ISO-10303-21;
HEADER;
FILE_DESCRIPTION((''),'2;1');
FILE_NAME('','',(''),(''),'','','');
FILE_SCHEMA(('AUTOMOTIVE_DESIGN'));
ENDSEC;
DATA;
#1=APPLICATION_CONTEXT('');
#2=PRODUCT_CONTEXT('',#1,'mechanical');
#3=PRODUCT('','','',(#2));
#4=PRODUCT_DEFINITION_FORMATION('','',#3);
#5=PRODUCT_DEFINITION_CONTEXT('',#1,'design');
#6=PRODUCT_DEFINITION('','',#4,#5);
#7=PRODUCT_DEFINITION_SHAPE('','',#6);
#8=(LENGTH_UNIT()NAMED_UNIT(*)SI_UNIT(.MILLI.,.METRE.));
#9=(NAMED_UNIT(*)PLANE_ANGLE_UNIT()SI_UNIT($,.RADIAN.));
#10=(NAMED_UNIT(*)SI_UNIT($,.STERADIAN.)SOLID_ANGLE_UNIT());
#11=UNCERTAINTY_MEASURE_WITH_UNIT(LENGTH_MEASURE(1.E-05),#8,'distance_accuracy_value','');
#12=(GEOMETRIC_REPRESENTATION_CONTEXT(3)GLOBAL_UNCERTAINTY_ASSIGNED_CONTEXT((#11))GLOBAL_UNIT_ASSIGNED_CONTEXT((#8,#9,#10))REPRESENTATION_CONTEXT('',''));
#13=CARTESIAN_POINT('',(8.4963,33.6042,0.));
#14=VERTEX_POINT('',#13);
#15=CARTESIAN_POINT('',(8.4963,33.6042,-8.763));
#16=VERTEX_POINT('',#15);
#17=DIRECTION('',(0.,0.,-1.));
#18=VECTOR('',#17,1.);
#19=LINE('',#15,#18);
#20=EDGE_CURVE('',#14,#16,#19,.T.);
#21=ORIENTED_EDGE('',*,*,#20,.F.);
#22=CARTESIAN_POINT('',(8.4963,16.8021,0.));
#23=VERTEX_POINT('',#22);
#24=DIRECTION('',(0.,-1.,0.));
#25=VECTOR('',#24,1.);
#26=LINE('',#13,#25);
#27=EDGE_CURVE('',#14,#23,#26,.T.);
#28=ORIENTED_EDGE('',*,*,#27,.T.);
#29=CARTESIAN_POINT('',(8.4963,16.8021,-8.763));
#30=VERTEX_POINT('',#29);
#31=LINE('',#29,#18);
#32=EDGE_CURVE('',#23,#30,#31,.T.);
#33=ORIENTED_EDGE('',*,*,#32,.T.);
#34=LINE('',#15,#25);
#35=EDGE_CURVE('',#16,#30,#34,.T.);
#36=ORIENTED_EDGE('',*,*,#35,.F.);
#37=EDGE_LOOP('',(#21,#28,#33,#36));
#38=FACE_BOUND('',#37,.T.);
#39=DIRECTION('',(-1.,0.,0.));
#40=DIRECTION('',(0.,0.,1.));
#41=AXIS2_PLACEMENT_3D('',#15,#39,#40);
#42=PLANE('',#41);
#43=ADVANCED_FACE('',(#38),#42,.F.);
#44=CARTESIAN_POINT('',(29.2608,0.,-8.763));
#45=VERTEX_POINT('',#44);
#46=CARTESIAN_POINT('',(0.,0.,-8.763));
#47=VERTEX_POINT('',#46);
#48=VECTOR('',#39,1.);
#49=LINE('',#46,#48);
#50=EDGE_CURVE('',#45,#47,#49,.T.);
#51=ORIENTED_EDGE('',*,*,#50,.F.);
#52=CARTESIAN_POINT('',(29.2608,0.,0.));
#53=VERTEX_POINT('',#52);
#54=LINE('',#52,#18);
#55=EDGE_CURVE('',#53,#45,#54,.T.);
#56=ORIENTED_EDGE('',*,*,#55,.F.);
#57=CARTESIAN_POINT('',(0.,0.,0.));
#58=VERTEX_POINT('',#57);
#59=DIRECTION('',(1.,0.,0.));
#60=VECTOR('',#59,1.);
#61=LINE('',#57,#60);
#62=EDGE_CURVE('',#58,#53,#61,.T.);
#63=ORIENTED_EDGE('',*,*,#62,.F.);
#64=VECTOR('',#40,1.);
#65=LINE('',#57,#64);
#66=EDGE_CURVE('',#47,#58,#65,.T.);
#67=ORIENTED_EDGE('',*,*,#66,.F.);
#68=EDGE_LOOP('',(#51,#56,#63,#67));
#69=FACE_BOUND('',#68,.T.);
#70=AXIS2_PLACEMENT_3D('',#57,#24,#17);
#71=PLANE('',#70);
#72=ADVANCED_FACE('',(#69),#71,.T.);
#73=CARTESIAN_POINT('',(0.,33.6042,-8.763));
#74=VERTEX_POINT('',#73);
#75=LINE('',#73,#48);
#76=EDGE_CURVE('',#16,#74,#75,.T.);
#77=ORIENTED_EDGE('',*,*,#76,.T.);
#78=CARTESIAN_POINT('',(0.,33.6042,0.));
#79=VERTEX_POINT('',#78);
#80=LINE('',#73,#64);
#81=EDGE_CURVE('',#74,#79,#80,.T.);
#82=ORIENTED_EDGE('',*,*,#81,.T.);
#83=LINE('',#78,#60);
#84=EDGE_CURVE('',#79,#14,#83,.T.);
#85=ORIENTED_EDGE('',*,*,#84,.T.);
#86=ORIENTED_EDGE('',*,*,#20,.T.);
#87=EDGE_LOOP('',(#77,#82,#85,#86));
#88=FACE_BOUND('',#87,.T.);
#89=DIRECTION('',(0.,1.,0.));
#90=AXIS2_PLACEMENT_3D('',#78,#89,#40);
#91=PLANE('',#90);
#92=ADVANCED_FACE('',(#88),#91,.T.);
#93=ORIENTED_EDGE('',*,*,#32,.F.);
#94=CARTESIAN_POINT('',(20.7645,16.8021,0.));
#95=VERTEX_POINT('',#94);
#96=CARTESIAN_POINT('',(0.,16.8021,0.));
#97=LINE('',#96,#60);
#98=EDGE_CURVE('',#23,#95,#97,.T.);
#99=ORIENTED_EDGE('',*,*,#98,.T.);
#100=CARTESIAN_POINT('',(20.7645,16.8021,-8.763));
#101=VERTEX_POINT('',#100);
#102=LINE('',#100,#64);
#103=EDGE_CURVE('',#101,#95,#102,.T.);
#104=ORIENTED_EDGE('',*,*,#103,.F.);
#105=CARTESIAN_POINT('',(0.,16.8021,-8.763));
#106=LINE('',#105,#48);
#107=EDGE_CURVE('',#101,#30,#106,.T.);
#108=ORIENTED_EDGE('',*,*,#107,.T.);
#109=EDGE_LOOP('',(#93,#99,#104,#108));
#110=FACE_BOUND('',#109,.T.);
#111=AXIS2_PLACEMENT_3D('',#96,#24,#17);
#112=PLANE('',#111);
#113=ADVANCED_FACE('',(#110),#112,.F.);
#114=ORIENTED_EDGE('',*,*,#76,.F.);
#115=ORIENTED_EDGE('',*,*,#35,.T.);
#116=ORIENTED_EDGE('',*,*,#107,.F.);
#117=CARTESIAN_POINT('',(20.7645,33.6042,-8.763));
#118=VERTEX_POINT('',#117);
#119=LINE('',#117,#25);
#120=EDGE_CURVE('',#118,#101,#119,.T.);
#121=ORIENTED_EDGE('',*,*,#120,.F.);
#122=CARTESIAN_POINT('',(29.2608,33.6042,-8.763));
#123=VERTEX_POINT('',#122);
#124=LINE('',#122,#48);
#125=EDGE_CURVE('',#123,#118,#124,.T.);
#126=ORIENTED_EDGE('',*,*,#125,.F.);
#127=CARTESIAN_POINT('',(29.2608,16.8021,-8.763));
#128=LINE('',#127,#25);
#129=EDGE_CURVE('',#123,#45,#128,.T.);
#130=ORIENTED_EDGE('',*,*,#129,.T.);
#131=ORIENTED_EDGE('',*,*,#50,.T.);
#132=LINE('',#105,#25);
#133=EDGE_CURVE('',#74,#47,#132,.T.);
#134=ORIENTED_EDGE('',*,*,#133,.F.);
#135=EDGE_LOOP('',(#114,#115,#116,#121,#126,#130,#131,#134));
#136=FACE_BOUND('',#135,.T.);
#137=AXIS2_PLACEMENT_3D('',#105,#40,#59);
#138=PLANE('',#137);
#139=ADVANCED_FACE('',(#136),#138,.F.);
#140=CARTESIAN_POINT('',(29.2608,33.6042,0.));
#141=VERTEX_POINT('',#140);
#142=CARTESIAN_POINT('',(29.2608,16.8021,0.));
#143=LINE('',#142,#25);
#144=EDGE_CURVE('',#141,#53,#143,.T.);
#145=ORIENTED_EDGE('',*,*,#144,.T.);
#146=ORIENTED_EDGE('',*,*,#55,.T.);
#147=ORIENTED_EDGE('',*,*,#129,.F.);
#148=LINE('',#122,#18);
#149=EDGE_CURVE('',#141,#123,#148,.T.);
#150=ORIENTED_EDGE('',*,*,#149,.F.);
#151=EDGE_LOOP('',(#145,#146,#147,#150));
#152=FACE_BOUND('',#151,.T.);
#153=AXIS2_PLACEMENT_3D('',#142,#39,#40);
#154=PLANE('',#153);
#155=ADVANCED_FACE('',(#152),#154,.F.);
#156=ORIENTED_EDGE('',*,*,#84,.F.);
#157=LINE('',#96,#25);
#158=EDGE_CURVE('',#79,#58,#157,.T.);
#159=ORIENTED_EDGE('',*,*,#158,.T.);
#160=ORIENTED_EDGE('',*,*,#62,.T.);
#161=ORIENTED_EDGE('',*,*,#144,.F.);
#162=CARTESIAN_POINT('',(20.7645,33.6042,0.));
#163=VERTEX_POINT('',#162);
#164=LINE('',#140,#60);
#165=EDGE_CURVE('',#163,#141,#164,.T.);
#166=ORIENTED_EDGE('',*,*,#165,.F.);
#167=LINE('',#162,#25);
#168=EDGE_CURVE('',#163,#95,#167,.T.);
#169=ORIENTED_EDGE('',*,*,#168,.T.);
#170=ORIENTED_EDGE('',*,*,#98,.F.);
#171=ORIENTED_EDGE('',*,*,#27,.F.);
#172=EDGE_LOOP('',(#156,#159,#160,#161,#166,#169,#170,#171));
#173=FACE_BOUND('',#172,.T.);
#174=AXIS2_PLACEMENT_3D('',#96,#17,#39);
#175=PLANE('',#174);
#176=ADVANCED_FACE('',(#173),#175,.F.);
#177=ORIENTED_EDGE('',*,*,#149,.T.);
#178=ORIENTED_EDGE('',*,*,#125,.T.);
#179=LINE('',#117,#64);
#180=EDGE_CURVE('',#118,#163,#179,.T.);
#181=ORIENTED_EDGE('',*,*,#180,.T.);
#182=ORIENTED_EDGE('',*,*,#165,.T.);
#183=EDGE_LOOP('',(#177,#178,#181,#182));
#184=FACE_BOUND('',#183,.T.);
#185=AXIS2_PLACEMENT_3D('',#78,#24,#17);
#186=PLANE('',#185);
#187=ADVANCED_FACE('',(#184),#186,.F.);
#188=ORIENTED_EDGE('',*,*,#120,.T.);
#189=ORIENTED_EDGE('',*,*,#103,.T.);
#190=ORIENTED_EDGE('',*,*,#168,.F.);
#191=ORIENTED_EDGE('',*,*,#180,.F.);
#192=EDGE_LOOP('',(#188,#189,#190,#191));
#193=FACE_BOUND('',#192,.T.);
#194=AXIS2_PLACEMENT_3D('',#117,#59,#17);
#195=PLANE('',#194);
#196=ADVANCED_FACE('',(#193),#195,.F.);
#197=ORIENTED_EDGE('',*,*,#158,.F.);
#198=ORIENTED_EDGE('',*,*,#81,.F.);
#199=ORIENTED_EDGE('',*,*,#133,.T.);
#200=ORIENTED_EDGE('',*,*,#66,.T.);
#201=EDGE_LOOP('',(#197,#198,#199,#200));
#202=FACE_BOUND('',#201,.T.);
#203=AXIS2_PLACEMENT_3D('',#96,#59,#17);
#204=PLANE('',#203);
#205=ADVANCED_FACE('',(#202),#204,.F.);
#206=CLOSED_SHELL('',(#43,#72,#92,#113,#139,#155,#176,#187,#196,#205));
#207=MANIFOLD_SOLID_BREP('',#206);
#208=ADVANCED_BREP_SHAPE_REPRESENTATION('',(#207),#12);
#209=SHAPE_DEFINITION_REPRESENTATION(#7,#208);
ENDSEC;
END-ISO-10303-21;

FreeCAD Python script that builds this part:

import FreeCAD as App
import Part
import Sketcher
Q = App.Units.Quantity


def add_polygon(sketch, points):
    """Adds a closed chain of lines whose ends are joined by coincident constraints."""
    first, n = sketch.GeometryCount, len(points)
    for a, b in zip(points, points[1:] + points[:1]):
        sketch.addGeometry(Part.LineSegment(App.Vector(*a, 0), App.Vector(*b, 0)), False)
    for i in range(n):
        sketch.addConstraint(Sketcher.Constraint("Coincident", first + i, 2, first + (i + 1) % n, 1))

doc = App.newDocument("Part")
params = doc.addObject("Spreadsheet::Sheet", "Params")
for row, (alias, value) in enumerate([
    ("sketch1_width", "1.152 in"),
    ("sketch1_height", "0.345 in"),
    ("pad1_length", "0.6615 in"),
    ("sketch2_height", "0.345 in"),
    ("pad2_length", "0.6615 in"),
], start=1):
    params.set(f"A{row}", alias)
    params.set(f"B{row}", "=" + value)
    params.setAlias(f"B{row}", alias)

body = doc.addObject("PartDesign::Body", "Body")

sketch1 = doc.addObject("Sketcher::SketchObject", "Sketch")
body.addObject(sketch1)
sketch1.AttachmentSupport = (doc.XZ_Plane, [""])
sketch1.MapMode = "FlatFace"
add_polygon(sketch1, [(0, -9), (0, 0), (29, 0), (29, -9)])
sketch1.addConstraint(Sketcher.Constraint("Vertical", 0))
sketch1.addConstraint(Sketcher.Constraint("Horizontal", 1))
sketch1.addConstraint(Sketcher.Constraint("Vertical", 2))
sketch1.addConstraint(Sketcher.Constraint("Horizontal", 3))
sketch1.addConstraint(Sketcher.Constraint("Coincident", 0, 2, -1, 1))
sketch1.addConstraint(Sketcher.Constraint("DistanceX", 1, 1, 1, 2, Q("1.152 in")))
sketch1.addConstraint(Sketcher.Constraint("DistanceY", 0, 1, 0, 2, Q("0.345 in")))
sketch1.setExpression("Constraints[9]", "Params.sketch1_width")
sketch1.setExpression("Constraints[10]", "Params.sketch1_height")
pad1 = doc.addObject("PartDesign::Pad", "Pad")
body.addObject(pad1)
pad1.Profile = sketch1
pad1.setExpression("Length", "Params.pad1_length")
pad1.Reversed = True

sketch2 = doc.addObject("Sketcher::SketchObject", "Sketch001")
body.addObject(sketch2)
sketch2.AttachmentSupport = (doc.XZ_Plane, [""])
sketch2.MapMode = "FlatFace"
sketch2.AttachmentOffset = App.Placement(App.Vector(0, 0, -0.6615 * 25.4), App.Rotation())
add_polygon(sketch2, [(0, -9), (0, 0), (8, 0), (8, -9)])
add_polygon(sketch2, [(21, -9), (21, 0), (29, 0), (29, -9)])
sketch2.addConstraint(Sketcher.Constraint("Vertical", 0))
sketch2.addConstraint(Sketcher.Constraint("Horizontal", 1))
sketch2.addConstraint(Sketcher.Constraint("Vertical", 2))
sketch2.addConstraint(Sketcher.Constraint("Horizontal", 3))
sketch2.addConstraint(Sketcher.Constraint("Vertical", 4))
sketch2.addConstraint(Sketcher.Constraint("Horizontal", 5))
sketch2.addConstraint(Sketcher.Constraint("Vertical", 6))
sketch2.addConstraint(Sketcher.Constraint("Horizontal", 7))
sketch2.addConstraint(Sketcher.Constraint("Coincident", 0, 2, -1, 1))
sketch2.addConstraint(Sketcher.Constraint("PointOnObject", 4, 2, -1))
sketch2.addConstraint(Sketcher.Constraint("Horizontal", 3, 2, 6, 2))
sketch2.addConstraint(Sketcher.Constraint("Equal", 3, 5))
sketch2.addConstraint(Sketcher.Constraint("DistanceY", 0, 1, 0, 2, Q("0.345 in")))
sketch2.addConstraint(Sketcher.Constraint("DistanceX", 1, 1, 1, 2, Q("0.3345 in")))
sketch2.addConstraint(Sketcher.Constraint("DistanceX", -1, 1, 5, 2, Q("1.152 in")))
sketch2.setExpression("Constraints[20]", "Params.sketch2_height")
pad2 = doc.addObject("PartDesign::Pad", "Pad001")
body.addObject(pad2)
pad2.Profile = sketch2
pad2.setExpression("Length", "Params.pad2_length")
pad2.Reversed = True

doc.recompute()
